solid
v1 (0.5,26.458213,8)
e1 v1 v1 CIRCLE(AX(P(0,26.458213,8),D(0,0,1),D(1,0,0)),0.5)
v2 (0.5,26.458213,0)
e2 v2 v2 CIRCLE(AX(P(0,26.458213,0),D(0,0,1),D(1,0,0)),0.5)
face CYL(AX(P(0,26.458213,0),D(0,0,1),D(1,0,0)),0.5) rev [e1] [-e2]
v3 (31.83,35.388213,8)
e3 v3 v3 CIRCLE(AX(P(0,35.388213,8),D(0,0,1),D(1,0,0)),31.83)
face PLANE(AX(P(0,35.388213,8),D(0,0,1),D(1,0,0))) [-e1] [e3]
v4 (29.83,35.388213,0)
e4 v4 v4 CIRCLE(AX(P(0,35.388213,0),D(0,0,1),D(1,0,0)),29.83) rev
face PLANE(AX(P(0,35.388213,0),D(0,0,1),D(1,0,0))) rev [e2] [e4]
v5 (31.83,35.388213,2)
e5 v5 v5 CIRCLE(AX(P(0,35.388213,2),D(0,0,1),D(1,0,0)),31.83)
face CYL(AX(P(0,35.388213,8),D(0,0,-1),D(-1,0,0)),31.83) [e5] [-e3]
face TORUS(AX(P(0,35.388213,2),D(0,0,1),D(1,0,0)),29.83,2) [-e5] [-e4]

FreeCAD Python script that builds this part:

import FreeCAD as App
import Part
import Sketcher

V = App.Vector


def edges_at(feature, points):
    """Names of the edges that pass closest to the given points."""
    edges = feature.Shape.Edges
    near = lambda p: min(range(len(edges)), key=lambda i: edges[i].distToShape(Part.Vertex(*p))[0])
    return sorted({f"Edge{near(p) + 1}" for p in points})

doc = App.newDocument("Part")
body = doc.addObject("PartDesign::Body", "Body")

sketch1 = body.newObject("Sketcher::SketchObject", "Sketch")
sketch1.AttachmentSupport = (doc.getObject("XY_Plane"), [""])
sketch1.MapMode = "FlatFace"
sketch1.addGeometry(Part.Circle(V(0, 35.388213, 0), V(0, 0, 1), 31.83), False)
sketch1.addConstraint([
    Sketcher.Constraint("PointOnObject", 0, 3, -2),
    Sketcher.Constraint("Diameter", 0, 63.66),
    Sketcher.Constraint("DistanceY", -1, 1, 0, 3, 35.388213),
])
pad1 = body.newObject("PartDesign::Pad", "Pad")
pad1.Profile = sketch1
pad1.Length = 8
doc.recompute()

fillet = body.newObject("PartDesign::Fillet", "Fillet")
fillet.Base = (pad1, edges_at(pad1, [(-31.83, 35.388, 0)]))
fillet.Radius = 2

sketch2 = body.newObject("Sketcher::SketchObject", "Sketch001")
sketch2.AttachmentSupport = (doc.getObject("XY_Plane"), [""])
sketch2.MapMode = "FlatFace"
sketch2.AttachmentOffset = App.Placement(V(0, 0, 8), App.Rotation())
sketch2.addGeometry(Part.Circle(V(0, 26.458213, 0), V(0, 0, 1), 0.5), False)
sketch2.addConstraint([
    Sketcher.Constraint("PointOnObject", 0, 3, -2),
    Sketcher.Constraint("Diameter", 0, 1.0),
    Sketcher.Constraint("DistanceY", -1, 1, 0, 3, 26.458213),
])
pocket1 = body.newObject("PartDesign::Pocket", "Pocket")
pocket1.Profile = sketch2
pocket1.Type = "ThroughAll"

doc.recompute()
